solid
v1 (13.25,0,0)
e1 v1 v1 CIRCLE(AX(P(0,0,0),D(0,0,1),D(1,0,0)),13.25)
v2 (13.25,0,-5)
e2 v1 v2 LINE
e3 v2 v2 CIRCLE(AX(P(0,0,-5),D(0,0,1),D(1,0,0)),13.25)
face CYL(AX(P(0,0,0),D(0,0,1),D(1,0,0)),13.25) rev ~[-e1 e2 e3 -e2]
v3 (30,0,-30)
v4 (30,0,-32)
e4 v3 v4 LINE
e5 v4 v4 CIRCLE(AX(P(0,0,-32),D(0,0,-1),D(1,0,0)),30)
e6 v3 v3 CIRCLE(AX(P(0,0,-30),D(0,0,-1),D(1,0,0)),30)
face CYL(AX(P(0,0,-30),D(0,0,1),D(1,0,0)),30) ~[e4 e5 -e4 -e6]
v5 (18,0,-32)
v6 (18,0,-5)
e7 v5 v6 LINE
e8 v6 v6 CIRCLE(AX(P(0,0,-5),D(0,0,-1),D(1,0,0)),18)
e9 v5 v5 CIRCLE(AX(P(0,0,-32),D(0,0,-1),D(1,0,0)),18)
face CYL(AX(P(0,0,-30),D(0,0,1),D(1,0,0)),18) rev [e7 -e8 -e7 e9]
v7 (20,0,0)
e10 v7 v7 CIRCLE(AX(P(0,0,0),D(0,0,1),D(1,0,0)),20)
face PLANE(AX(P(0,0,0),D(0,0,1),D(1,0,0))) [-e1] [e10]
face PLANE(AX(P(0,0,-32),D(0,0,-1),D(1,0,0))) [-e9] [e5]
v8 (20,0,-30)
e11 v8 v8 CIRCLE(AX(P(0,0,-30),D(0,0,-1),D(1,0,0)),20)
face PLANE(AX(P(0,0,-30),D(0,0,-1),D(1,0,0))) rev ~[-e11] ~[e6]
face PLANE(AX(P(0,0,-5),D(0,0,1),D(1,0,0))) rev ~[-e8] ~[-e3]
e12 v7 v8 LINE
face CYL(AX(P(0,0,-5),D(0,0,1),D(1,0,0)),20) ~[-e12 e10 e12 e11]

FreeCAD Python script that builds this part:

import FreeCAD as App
import Part
import Sketcher
Q = App.Units.Quantity

doc = App.newDocument("Part")
body = doc.addObject("PartDesign::Body", "Body")

sketch1 = body.newObject("Sketcher::SketchObject", "Sketch")
sketch1.AttachmentSupport = (doc.getObject("XY_Plane"), [""])
sketch1.MapMode = "FlatFace"
sketch1.addGeometry(Part.Circle(App.Vector(0, 0, 0), App.Vector(0, 0, 1), 20), False)
sketch1.addGeometry(Part.Circle(App.Vector(0, 0, 0), App.Vector(0, 0, 1), 13), False)
sketch1.addConstraint(Sketcher.Constraint("Coincident", 0, 3, -1, 1))
sketch1.addConstraint(Sketcher.Constraint("Coincident", 1, 3, -1, 1))
sketch1.addConstraint(Sketcher.Constraint("Diameter", 0, Q("40 mm")))
sketch1.addConstraint(Sketcher.Constraint("Diameter", 1, Q("26.5 mm")))
pad1 = body.newObject("PartDesign::Pad", "Pad")
pad1.Profile = sketch1
pad1.Length = 5
pad1.Reversed = True

sketch2 = body.newObject("Sketcher::SketchObject", "Sketch001")
sketch2.AttachmentSupport = (doc.getObject("XY_Plane"), [""])
sketch2.MapMode = "FlatFace"
sketch2.AttachmentOffset = App.Placement(App.Vector(0, 0, -5), App.Rotation())
sketch2.addGeometry(Part.Circle(App.Vector(0, 0, 0), App.Vector(0, 0, 1), 20), False)
sketch2.addGeometry(Part.Circle(App.Vector(0, 0, 0), App.Vector(0, 0, 1), 18), False)
sketch2.addConstraint(Sketcher.Constraint("Coincident", 0, 3, -1, 1))
sketch2.addConstraint(Sketcher.Constraint("Coincident", 1, 3, -1, 1))
sketch2.addConstraint(Sketcher.Constraint("Diameter", 0, Q("40 mm")))
sketch2.addConstraint(Sketcher.Constraint("Diameter", 1, Q("36 mm")))
pad2 = body.newObject("PartDesign::Pad", "Pad001")
pad2.Profile = sketch2
pad2.Length = 25
pad2.Reversed = True

sketch3 = body.newObject("Sketcher::SketchObject", "Sketch002")
sketch3.AttachmentSupport = (doc.getObject("XY_Plane"), [""])
sketch3.MapMode = "FlatFace"
sketch3.AttachmentOffset = App.Placement(App.Vector(0, 0, -30), App.Rotation())
sketch3.addGeometry(Part.Circle(App.Vector(0, 0, 0), App.Vector(0, 0, 1), 30), False)
sketch3.addGeometry(Part.Circle(App.Vector(0, 0, 0), App.Vector(0, 0, 1), 18), False)
sketch3.addConstraint(Sketcher.Constraint("Coincident", 0, 3, -1, 1))
sketch3.addConstraint(Sketcher.Constraint("Coincident", 1, 3, -1, 1))
sketch3.addConstraint(Sketcher.Constraint("Diameter", 0, Q("60 mm")))
sketch3.addConstraint(Sketcher.Constraint("Diameter", 1, Q("36 mm")))
pad3 = body.newObject("PartDesign::Pad", "Pad002")
pad3.Profile = sketch3
pad3.Length = 2
pad3.Reversed = True

doc.recompute()
